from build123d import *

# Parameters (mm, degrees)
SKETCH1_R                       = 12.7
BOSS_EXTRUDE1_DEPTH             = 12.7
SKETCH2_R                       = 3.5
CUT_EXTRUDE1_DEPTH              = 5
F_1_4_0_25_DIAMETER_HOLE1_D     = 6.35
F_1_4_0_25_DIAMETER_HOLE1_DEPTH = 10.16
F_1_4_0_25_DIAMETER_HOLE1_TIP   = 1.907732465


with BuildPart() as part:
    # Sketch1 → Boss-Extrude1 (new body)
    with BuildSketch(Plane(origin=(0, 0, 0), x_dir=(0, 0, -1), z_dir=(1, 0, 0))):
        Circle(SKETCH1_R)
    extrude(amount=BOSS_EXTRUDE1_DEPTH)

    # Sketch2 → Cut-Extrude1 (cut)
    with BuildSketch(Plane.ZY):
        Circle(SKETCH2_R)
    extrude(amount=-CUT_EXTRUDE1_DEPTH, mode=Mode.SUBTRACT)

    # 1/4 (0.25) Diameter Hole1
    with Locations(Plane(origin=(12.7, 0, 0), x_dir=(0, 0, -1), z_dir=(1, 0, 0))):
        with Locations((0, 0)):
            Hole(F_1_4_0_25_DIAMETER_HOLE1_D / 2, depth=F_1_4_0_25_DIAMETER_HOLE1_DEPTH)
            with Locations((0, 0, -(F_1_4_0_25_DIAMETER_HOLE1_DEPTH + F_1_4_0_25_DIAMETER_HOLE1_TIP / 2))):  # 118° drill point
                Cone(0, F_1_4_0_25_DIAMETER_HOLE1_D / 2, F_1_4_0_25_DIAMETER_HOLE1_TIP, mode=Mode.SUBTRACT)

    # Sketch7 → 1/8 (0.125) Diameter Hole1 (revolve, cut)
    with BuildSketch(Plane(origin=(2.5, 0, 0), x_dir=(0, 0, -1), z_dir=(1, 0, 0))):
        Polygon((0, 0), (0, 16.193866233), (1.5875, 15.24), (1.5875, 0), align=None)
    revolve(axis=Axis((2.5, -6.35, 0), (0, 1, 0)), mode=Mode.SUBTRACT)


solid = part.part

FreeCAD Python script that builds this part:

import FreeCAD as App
import Part
import Sketcher
from FreeCAD import Vector
Q = App.Units.Quantity

doc = App.newDocument("Part")
body = doc.addObject("PartDesign::Body", "Body")

sketch1 = doc.addObject("Sketcher::SketchObject", "Sketch")
body.addObject(sketch1)
sketch1.AttachmentSupport = (doc.YZ_Plane, [""])
sketch1.MapMode = "FlatFace"
sketch1.addGeometry(Part.Circle(Vector(0, 0, 0), Vector(0, 0, 1), 13), False)
sketch1.addConstraint([
    Sketcher.Constraint("Coincident", 0, 3, -1, 1),
    Sketcher.Constraint("Diameter", 0, Q("1 in")),
])
pad1 = doc.addObject("PartDesign::Pad", "Pad")
body.addObject(pad1)
pad1.Profile = sketch1
pad1.Length = Q("0.5 in")

sketch2 = doc.addObject("Sketcher::SketchObject", "Sketch001")
body.addObject(sketch2)
sketch2.AttachmentSupport = (doc.YZ_Plane, [""])
sketch2.MapMode = "FlatFace"
sketch2.addGeometry(Part.Circle(Vector(0, 0, 0), Vector(0, 0, 1), 3.5), False)
sketch2.addConstraint([
    Sketcher.Constraint("Coincident", 0, 3, -1, 1),
    Sketcher.Constraint("Diameter", 0, 7.0),
])
pocket1 = doc.addObject("PartDesign::Pocket", "Pocket")
body.addObject(pocket1)
pocket1.Profile = sketch2
pocket1.Length = 5
pocket1.Reversed = True

sketch3 = doc.addObject("Sketcher::SketchObject", "Sketch002")
body.addObject(sketch3)
sketch3.AttachmentSupport = (doc.YZ_Plane, [""])
sketch3.MapMode = "FlatFace"
sketch3.AttachmentOffset = App.Placement(Vector(0, 0, 0.5 * 25.4), App.Rotation())
sketch3.addGeometry(Part.Circle(Vector(0, 0, 0), Vector(0, 0, 1), 3.2), False)
sketch3.addConstraint([
    Sketcher.Constraint("Coincident", 0, 3, -1, 1),
    Sketcher.Constraint("Diameter", 0, Q("0.25 in")),
])
doc.recompute()
hole = doc.addObject("PartDesign::Hole", "Hole")
body.addObject(hole)
hole.Profile = sketch3
hole.ThreadType = "None"
hole.Diameter = Q("0.25 in")
hole.DepthType = "Dimension"
hole.Depth = Q("0.4 in")
hole.DrillPoint = "Angled"
hole.DrillPointAngle = 118

sketch4 = doc.addObject("Sketcher::SketchObject", "Sketch003")
body.addObject(sketch4)
sketch4.AttachmentSupport = (doc.YZ_Plane, [""])
sketch4.MapMode = "FlatFace"
sketch4.AttachmentOffset = App.Placement(Vector(0, 0, 2.5), App.Rotation())
sketch4.addGeometry([
    Part.LineSegment(Vector(16.2, 0, 0), Vector(0, 0, 0)),
    Part.LineSegment(Vector(0, 0, 0), Vector(0, -1.6, 0)),
    Part.LineSegment(Vector(0, -1.6, 0), Vector(15.2, -1.6, 0)),
    Part.LineSegment(Vector(15.2, -1.6, 0), Vector(16.2, 0, 0)),
], False)
sketch4.addConstraint([
    Sketcher.Constraint("Coincident", 0, 2, 1, 1),
    Sketcher.Constraint("Coincident", 1, 2, 2, 1),
    Sketcher.Constraint("Coincident", 2, 2, 3, 1),
    Sketcher.Constraint("Coincident", 3, 2, 0, 1),
    Sketcher.Constraint("Horizontal", 0),
    Sketcher.Constraint("Vertical", 1),
    Sketcher.Constraint("Horizontal", 2),
    Sketcher.Constraint("Coincident", 0, 2, -1, 1),
    Sketcher.Constraint("DistanceX", 2, 1, 2, 2, Q("0.6 in")),
    Sketcher.Constraint("Angle", 3, Q("59 deg")),
    Sketcher.Constraint("DistanceY", 1, 2, 1, 1, Q("0.0625 in")),
])
groove = doc.addObject("PartDesign::Groove", "Groove")
body.addObject(groove)
groove.Profile = sketch4
groove.ReferenceAxis = (sketch4, ["H_Axis"])
groove.Angle = 360

doc.recompute()
